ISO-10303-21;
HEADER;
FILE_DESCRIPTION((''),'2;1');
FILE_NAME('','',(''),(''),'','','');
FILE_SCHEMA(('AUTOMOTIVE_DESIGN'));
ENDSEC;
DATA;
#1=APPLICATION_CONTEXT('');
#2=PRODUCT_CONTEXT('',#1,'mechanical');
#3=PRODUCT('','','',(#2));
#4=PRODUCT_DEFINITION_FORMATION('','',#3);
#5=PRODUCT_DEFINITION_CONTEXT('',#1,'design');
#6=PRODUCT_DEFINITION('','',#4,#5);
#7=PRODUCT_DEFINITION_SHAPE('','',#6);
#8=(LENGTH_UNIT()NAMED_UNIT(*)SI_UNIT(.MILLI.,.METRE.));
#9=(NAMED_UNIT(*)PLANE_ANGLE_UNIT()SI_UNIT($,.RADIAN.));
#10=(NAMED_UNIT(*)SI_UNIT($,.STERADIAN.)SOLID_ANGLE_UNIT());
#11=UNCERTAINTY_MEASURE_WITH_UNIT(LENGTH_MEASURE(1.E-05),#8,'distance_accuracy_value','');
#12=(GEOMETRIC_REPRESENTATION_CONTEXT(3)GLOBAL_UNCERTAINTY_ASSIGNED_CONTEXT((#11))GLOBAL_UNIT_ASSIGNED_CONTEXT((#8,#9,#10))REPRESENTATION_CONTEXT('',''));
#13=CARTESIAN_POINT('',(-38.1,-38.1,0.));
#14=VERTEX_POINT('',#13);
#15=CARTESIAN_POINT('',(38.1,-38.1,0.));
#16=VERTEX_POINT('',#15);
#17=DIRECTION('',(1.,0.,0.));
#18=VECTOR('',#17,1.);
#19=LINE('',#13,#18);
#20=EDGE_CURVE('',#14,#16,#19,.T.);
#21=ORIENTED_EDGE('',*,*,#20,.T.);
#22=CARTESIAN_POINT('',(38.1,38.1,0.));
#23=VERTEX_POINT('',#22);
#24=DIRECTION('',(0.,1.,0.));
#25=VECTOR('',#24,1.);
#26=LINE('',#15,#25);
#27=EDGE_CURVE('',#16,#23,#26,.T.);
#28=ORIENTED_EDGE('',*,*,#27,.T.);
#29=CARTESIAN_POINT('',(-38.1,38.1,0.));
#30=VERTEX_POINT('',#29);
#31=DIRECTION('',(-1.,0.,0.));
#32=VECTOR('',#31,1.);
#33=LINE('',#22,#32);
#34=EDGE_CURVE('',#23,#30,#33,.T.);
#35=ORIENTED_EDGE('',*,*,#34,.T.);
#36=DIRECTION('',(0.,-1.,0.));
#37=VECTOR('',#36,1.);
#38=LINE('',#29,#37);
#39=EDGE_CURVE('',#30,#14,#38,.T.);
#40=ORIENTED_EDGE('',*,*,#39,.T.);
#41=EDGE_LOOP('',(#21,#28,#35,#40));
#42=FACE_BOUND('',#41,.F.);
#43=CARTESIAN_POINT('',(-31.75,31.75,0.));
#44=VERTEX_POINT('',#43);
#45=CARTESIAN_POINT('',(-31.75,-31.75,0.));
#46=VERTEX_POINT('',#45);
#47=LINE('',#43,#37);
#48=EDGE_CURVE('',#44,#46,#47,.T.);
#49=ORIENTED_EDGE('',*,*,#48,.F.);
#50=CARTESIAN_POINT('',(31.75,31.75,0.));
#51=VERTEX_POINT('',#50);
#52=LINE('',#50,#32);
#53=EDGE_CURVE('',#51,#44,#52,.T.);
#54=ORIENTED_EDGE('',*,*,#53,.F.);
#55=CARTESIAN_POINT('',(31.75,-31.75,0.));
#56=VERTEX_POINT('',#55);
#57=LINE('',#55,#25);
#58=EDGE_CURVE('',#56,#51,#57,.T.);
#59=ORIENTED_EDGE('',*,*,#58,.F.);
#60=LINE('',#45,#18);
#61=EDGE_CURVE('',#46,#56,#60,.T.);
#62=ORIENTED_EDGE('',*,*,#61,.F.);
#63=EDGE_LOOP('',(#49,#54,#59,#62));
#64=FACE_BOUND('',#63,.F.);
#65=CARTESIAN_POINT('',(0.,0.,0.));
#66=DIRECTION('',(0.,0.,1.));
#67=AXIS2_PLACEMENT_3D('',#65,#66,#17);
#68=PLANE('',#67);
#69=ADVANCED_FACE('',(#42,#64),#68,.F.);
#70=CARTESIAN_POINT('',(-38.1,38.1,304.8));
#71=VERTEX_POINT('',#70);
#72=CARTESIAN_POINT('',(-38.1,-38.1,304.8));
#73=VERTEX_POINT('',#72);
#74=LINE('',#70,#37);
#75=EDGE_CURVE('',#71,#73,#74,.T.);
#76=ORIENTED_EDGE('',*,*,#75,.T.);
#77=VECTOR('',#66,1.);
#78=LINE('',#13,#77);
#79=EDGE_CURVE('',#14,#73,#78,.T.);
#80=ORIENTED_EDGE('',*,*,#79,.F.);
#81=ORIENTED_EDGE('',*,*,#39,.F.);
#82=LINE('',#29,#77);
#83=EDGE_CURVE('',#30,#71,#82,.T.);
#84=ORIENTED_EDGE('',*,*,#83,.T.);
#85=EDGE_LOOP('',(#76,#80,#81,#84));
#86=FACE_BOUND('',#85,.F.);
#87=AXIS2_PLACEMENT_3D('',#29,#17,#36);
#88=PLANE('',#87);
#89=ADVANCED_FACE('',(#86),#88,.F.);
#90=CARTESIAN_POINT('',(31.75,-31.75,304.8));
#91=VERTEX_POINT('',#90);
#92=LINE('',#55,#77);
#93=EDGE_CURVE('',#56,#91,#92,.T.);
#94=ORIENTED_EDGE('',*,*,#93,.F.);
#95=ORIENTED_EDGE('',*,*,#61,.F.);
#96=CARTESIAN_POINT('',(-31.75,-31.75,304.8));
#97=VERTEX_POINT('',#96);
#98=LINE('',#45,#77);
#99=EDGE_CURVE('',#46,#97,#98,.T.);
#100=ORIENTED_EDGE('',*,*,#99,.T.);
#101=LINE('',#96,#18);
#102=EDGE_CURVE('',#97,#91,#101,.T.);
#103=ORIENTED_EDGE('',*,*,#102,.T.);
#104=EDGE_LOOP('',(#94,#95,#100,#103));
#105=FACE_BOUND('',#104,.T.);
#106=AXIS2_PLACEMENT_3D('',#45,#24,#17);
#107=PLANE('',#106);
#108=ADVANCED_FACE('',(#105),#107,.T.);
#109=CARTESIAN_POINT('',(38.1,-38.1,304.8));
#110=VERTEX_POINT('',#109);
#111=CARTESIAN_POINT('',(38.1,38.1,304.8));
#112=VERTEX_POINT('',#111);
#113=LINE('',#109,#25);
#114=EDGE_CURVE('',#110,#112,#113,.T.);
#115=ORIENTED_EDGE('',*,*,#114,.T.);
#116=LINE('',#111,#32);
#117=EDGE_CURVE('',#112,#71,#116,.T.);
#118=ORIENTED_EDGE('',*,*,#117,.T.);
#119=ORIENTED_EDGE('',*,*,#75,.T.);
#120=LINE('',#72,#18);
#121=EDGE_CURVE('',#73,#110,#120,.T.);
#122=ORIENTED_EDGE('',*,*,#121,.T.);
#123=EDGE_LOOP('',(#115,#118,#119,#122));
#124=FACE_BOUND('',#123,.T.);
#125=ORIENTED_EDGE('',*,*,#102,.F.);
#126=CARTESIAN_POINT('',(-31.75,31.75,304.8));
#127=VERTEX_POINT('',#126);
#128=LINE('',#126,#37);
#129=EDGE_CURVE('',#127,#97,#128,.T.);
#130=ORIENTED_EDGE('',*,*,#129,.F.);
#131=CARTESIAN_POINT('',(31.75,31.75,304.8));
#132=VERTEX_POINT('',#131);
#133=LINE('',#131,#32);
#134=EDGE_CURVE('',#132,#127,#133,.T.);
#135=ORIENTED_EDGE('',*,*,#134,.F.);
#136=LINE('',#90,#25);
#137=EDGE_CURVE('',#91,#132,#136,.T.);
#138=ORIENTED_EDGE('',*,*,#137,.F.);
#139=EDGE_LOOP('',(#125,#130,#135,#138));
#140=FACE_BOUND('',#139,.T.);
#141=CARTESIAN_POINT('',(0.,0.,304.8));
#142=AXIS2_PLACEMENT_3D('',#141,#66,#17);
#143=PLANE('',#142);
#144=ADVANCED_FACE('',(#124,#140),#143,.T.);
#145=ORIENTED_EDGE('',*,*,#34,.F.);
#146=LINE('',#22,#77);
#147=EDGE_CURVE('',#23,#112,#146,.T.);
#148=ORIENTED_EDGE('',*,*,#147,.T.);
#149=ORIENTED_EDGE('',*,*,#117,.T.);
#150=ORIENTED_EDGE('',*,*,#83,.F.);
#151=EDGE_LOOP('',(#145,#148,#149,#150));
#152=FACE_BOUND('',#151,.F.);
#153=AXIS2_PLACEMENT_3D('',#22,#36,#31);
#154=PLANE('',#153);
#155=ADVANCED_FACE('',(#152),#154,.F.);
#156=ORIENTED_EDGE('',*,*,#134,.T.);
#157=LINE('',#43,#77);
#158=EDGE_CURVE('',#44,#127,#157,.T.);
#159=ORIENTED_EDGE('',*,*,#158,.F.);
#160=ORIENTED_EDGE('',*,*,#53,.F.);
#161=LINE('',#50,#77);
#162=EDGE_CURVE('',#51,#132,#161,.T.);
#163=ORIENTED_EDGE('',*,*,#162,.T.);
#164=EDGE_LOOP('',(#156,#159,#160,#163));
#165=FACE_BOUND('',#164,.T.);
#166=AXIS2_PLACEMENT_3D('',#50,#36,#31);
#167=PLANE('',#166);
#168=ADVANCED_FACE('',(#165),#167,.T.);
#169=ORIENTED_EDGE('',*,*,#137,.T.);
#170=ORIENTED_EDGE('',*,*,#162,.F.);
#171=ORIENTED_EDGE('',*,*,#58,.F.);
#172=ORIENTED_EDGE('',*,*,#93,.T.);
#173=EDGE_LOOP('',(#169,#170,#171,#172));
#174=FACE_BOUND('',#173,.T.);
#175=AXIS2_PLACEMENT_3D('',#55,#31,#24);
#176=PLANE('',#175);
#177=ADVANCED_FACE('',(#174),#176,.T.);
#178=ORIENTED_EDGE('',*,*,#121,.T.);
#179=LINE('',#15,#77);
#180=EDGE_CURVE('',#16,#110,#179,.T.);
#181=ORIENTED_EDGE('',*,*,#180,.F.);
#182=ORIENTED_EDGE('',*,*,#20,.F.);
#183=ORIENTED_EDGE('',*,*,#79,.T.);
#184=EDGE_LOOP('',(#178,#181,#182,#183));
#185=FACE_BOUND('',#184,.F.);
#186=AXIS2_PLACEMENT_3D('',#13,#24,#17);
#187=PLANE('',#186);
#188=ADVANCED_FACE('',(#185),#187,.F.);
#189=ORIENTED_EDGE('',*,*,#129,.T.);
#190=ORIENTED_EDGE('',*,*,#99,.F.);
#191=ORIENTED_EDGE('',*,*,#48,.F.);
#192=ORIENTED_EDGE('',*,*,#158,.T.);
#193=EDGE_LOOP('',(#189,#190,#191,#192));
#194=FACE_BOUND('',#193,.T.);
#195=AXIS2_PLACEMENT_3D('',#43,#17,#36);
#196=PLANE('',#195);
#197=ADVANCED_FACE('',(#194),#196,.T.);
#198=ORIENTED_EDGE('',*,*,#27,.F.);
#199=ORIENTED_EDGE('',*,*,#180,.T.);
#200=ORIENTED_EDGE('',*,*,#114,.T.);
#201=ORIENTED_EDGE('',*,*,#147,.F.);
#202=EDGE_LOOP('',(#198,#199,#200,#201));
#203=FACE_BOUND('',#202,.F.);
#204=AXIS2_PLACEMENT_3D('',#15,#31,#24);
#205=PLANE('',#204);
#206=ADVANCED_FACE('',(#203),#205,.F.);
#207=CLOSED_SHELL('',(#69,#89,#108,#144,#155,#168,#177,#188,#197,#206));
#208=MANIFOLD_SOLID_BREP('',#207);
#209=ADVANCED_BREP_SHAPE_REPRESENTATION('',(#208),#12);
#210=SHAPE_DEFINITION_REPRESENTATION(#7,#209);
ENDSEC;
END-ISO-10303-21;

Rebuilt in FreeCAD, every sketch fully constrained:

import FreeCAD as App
import Part
import Sketcher

V = App.Vector
Q = App.Units.Quantity


def add_polygon(sketch, points):
    """Adds a closed chain of lines whose ends are joined by coincident constraints."""
    first, n = sketch.GeometryCount, len(points)
    for a, b in zip(points, points[1:] + points[:1]):
        sketch.addGeometry(Part.LineSegment(App.Vector(*a, 0), App.Vector(*b, 0)), False)
    for i in range(n):
        sketch.addConstraint(Sketcher.Constraint("Coincident", first + i, 2, first + (i + 1) % n, 1))

doc = App.newDocument("Part")
params = doc.addObject("Spreadsheet::Sheet", "Params")
for row, (alias, value) in enumerate([
    ("sketch1_width", "3 in"),
    ("sketch1_width2", "2.5 in"),
    ("pad1_length", "12 in"),
], start=1):
    params.set(f"A{row}", alias)
    params.set(f"B{row}", "=" + value)
    params.setAlias(f"B{row}", alias)

body = doc.addObject("PartDesign::Body", "Body")

# Sketch on XY plane
sketch1 = body.newObject("Sketcher::SketchObject", "Sketch")
sketch1.AttachmentSupport = (doc.getObject("XY_Plane"), [""])
sketch1.MapMode = "FlatFace"
add_polygon(sketch1, [(-38, 38), (-38, -38), (38, -38), (38, 38)])  # lines 0-3
add_polygon(sketch1, [(32, -32), (-32, -32), (-32, 32), (32, 32)])  # lines 4-7
sketch1.addConstraint([
    Sketcher.Constraint("Vertical", 0),
    Sketcher.Constraint("Horizontal", 1),
    Sketcher.Constraint("Vertical", 2),
    Sketcher.Constraint("Horizontal", 3),
    Sketcher.Constraint("Horizontal", 4),
    Sketcher.Constraint("Vertical", 5),
    Sketcher.Constraint("Horizontal", 6),
    Sketcher.Constraint("Vertical", 7),
    Sketcher.Constraint("Symmetric", 0, 2, 2, 2, -1, 1),
    Sketcher.Constraint("Symmetric", 4, 2, 6, 2, -1, 1),
    Sketcher.Constraint("Equal", 3, 0),
    Sketcher.Constraint("Equal", 6, 5),
    Sketcher.Constraint("DistanceX", 1, 1, 1, 2, Q("3 in")),
    Sketcher.Constraint("DistanceX", 4, 2, 4, 1, Q("2.5 in")),
])
sketch1.setExpression("Constraints[20]", "Params.sketch1_width")
sketch1.setExpression("Constraints[21]", "Params.sketch1_width2")
pad1 = body.newObject("PartDesign::Pad", "Pad")
pad1.Profile = sketch1
pad1.setExpression("Length", "Params.pad1_length")

doc.recompute()
